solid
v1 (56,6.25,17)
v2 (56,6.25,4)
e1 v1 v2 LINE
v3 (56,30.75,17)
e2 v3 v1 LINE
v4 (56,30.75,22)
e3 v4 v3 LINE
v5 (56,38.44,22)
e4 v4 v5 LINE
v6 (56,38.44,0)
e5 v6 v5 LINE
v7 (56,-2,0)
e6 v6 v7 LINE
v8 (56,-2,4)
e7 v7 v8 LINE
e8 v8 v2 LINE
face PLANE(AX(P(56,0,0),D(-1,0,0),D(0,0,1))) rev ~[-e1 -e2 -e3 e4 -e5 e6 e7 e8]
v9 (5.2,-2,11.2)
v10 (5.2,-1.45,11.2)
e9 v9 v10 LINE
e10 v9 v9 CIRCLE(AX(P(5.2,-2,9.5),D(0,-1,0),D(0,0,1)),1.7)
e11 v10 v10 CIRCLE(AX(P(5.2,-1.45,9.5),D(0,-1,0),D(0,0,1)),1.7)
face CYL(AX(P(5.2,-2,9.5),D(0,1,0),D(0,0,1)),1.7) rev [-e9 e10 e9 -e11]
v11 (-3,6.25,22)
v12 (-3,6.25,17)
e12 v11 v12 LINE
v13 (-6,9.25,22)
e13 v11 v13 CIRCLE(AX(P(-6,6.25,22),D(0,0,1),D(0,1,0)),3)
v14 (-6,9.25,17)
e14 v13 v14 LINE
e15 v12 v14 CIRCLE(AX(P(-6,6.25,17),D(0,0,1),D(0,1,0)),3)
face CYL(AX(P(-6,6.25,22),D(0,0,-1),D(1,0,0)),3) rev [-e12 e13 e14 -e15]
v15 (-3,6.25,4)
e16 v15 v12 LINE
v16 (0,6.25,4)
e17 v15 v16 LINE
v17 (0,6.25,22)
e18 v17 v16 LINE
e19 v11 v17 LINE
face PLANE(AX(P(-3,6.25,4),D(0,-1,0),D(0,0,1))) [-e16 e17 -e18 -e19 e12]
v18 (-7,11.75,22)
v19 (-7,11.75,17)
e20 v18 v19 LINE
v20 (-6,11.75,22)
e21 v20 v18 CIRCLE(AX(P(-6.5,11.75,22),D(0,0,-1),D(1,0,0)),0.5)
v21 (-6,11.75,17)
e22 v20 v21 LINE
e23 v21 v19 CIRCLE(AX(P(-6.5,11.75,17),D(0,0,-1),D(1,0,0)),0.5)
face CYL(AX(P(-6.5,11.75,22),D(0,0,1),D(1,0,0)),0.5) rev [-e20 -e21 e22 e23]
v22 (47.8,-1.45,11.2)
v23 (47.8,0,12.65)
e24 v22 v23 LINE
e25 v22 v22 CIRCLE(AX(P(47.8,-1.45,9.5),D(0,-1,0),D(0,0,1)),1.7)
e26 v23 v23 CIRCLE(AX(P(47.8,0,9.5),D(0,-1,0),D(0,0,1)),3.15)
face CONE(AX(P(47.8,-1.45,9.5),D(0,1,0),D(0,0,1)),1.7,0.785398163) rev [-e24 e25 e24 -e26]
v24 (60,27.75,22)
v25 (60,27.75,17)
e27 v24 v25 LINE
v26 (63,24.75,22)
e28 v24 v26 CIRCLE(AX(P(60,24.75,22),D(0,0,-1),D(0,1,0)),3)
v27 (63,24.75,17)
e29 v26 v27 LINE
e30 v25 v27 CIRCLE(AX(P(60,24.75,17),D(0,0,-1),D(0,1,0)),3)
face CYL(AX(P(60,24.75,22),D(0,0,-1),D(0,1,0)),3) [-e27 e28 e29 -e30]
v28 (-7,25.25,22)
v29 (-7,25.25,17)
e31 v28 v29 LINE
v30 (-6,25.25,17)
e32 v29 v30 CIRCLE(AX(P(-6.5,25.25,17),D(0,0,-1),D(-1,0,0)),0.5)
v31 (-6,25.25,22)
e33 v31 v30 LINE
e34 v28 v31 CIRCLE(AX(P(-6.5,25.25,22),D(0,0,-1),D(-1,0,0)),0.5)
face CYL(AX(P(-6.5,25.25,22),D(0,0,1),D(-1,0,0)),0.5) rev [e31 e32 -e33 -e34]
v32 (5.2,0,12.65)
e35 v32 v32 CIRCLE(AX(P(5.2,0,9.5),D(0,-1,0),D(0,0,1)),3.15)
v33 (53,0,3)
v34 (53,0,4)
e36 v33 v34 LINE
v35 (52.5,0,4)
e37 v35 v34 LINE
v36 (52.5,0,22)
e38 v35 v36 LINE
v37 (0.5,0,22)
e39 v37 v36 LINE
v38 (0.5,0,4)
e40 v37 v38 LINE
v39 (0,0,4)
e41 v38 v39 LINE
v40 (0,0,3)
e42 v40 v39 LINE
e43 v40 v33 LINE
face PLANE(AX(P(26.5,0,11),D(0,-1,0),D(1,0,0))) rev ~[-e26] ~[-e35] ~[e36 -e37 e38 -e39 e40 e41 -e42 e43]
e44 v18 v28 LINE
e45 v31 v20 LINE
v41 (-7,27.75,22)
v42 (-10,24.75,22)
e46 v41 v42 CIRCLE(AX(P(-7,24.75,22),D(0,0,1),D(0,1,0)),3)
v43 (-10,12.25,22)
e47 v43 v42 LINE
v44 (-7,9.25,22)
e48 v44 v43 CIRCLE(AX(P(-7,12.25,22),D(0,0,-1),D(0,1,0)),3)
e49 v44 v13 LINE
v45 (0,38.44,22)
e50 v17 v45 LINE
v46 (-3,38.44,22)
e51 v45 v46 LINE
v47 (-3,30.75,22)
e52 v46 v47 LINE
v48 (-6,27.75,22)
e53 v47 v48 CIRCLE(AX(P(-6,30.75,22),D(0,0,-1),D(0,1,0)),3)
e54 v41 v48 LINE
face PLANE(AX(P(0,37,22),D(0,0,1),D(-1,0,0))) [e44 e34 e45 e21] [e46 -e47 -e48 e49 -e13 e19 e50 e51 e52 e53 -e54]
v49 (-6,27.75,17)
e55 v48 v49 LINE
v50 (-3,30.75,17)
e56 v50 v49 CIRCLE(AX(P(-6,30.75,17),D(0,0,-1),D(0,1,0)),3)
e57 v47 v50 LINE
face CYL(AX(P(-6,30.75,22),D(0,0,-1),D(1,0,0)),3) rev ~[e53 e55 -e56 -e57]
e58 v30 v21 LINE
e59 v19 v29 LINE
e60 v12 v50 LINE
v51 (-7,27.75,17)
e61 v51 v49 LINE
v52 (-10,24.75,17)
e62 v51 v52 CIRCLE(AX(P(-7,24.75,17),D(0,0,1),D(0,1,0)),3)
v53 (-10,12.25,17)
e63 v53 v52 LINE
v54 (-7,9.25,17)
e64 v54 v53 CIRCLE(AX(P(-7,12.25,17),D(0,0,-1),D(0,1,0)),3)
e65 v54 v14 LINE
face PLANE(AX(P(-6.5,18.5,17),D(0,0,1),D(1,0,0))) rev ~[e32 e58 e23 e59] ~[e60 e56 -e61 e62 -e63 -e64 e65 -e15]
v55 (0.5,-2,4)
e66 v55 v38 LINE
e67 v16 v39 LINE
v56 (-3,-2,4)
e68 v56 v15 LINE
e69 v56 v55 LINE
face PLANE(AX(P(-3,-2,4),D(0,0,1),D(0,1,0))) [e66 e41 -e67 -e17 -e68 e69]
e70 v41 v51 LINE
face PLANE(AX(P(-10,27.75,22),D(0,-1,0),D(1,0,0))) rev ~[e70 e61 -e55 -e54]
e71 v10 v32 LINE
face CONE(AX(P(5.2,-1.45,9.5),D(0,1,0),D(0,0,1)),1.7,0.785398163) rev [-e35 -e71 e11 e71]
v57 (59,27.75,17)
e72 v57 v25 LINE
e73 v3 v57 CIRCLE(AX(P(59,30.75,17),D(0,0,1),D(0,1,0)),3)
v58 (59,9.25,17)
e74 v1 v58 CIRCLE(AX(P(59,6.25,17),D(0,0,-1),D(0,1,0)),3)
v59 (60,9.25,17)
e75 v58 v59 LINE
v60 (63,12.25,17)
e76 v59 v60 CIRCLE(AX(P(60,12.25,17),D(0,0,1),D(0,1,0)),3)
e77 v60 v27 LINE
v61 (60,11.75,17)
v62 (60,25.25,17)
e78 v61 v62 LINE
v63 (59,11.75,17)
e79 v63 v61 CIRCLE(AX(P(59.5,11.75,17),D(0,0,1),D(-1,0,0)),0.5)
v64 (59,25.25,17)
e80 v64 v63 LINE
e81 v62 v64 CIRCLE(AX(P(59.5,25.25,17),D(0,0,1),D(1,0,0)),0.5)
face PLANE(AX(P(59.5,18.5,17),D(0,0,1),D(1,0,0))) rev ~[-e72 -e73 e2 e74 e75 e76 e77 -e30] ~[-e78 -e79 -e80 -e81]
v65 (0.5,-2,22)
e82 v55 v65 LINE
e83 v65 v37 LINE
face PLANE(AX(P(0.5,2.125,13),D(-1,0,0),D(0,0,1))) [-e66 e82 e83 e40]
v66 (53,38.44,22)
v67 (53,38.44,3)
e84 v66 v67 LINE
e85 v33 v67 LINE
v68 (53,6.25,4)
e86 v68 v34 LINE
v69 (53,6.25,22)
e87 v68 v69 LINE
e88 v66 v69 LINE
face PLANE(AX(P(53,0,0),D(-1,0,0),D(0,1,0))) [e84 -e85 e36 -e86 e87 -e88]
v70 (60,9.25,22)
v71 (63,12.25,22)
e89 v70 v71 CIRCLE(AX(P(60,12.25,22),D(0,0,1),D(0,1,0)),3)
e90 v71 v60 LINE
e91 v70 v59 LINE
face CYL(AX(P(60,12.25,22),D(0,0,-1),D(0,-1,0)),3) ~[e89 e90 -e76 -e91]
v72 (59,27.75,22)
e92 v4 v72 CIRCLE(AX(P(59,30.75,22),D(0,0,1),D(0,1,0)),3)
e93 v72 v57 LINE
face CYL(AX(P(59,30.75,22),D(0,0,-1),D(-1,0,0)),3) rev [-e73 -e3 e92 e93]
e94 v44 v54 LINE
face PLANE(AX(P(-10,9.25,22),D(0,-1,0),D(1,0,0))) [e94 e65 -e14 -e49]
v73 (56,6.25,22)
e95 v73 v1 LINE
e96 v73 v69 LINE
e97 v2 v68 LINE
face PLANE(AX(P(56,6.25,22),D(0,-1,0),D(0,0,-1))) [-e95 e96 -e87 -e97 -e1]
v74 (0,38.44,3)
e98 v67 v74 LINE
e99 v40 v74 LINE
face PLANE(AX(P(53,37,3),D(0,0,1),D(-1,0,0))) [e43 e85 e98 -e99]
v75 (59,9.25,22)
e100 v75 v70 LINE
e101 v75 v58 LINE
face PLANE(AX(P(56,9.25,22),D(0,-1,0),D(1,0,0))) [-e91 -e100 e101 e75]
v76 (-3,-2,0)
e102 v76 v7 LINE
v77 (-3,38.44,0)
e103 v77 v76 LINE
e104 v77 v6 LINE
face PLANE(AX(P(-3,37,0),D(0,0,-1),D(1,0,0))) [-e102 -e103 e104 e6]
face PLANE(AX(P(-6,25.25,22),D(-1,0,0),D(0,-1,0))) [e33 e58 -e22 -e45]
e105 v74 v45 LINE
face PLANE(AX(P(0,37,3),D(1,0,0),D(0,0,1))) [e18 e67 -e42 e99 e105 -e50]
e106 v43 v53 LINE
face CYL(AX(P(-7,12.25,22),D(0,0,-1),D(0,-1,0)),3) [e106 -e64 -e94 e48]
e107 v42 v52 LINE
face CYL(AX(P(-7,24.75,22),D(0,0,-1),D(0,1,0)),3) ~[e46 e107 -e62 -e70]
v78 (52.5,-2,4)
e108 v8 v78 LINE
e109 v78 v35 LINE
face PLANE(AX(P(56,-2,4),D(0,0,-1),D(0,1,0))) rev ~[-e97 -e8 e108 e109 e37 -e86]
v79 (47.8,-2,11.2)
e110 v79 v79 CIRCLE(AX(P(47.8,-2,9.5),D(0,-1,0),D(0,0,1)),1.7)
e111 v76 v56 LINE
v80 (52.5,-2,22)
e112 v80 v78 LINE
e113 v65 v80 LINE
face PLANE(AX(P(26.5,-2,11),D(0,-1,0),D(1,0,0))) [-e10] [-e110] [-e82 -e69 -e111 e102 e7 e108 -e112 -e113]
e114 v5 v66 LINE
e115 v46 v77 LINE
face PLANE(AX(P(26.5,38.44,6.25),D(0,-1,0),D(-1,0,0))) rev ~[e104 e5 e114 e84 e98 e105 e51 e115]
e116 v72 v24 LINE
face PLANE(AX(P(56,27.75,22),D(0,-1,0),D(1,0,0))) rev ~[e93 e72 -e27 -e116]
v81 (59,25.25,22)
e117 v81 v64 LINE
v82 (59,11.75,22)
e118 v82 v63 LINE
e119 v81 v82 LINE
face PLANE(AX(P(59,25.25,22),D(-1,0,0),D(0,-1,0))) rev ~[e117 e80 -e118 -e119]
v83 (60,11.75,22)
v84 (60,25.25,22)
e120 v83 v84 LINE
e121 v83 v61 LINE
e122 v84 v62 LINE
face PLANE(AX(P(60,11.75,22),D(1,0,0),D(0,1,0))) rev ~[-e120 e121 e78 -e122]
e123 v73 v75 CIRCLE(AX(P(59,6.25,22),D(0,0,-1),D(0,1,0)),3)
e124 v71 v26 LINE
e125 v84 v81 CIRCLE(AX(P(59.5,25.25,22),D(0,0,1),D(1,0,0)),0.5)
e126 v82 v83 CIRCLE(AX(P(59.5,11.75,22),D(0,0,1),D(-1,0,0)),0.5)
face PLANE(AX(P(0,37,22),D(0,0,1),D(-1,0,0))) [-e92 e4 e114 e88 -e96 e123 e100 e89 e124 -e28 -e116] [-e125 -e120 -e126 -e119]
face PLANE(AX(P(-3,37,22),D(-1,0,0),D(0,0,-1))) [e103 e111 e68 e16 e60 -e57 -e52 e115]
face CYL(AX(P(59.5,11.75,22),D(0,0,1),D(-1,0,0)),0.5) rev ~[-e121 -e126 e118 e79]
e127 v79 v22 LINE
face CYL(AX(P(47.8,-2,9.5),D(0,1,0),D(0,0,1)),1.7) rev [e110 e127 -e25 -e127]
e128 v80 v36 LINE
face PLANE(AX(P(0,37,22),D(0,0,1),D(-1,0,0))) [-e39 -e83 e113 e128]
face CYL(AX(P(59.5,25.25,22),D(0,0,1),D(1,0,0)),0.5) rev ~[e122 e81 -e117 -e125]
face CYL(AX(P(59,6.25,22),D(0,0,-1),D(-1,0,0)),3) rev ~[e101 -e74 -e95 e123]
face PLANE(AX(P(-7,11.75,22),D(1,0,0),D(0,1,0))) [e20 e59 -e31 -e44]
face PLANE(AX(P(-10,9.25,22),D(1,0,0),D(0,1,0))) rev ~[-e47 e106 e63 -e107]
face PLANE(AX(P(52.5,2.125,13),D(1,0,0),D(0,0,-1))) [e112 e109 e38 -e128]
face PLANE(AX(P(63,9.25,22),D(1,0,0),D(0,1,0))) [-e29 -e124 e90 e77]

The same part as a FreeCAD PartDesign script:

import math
import FreeCAD as App
import Part
import Sketcher
from FreeCAD import Vector
Q = App.Units.Quantity


def edges_at(feature, points):
    """Names of the edges that pass closest to the given points."""
    edges = feature.Shape.Edges
    near = lambda p: min(range(len(edges)), key=lambda i: edges[i].distToShape(Part.Vertex(*p))[0])
    return sorted({f"Edge{near(p) + 1}" for p in points})


def add_polygon(sketch, points):
    """Adds a closed chain of lines whose ends are joined by coincident constraints."""
    first, n = sketch.GeometryCount, len(points)
    for a, b in zip(points, points[1:] + points[:1]):
        sketch.addGeometry(Part.LineSegment(App.Vector(*a, 0), App.Vector(*b, 0)), False)
    for i in range(n):
        sketch.addConstraint(Sketcher.Constraint("Coincident", first + i, 2, first + (i + 1) % n, 1))

doc = App.newDocument("Part")
body = doc.addObject("PartDesign::Body", "Body")

# Sketch on XY plane
sketch1 = doc.addObject("Sketcher::SketchObject", "Sketch")
body.addObject(sketch1)
sketch1.AttachmentSupport = (doc.XY_Plane, [""])
sketch1.MapMode = "FlatFace"
add_polygon(sketch1, [(0, 37), (0, 0), (53, 0), (53, 37)])  # lines 0-3
sketch1.addConstraint([
    Sketcher.Constraint("Vertical", 0),
    Sketcher.Constraint("Horizontal", 1),
    Sketcher.Constraint("Vertical", 2),
    Sketcher.Constraint("Horizontal", 3),
    Sketcher.Constraint("Coincident", 0, 2, -1, 1),
    Sketcher.Constraint("DistanceX", 1, 1, 1, 2, 53.0),
    Sketcher.Constraint("DistanceY", 0, 2, 0, 1, 37.0),
])
pad1 = doc.addObject("PartDesign::Pad", "Pad")
body.addObject(pad1)
pad1.Profile = sketch1
pad1.Length = 3

# Sketch on XY plane
sketch2 = doc.addObject("Sketcher::SketchObject", "Sketch001")
body.addObject(sketch2)
sketch2.AttachmentSupport = (doc.XY_Plane, [""])
sketch2.MapMode = "FlatFace"
sketch2.AttachmentOffset = App.Placement(Vector(0, 0, 3), App.Rotation())
add_polygon(sketch2, [(-3, 37), (-3, 0), (0, 0), (0, 37)])  # lines 0-3
add_polygon(sketch2, [(53, 37), (53, 0), (56, 0), (56, 37)])  # lines 4-7
sketch2.addConstraint([
    Sketcher.Constraint("Vertical", 0),
    Sketcher.Constraint("Horizontal", 1),
    Sketcher.Constraint("Vertical", 2),
    Sketcher.Constraint("Horizontal", 3),
    Sketcher.Constraint("Vertical", 4),
    Sketcher.Constraint("Horizontal", 5),
    Sketcher.Constraint("Vertical", 6),
    Sketcher.Constraint("Horizontal", 7),
    Sketcher.Constraint("Coincident", 1, 2, -1, 1),
    Sketcher.Constraint("PointOnObject", 4, 2, -1),
    Sketcher.Constraint("Horizontal", 3, 2, 6, 2),
    Sketcher.Constraint("Equal", 3, 5),
    Sketcher.Constraint("DistanceX", 1, 1, 1, 2, 3.0),
    Sketcher.Constraint("DistanceY", 0, 2, 0, 1, 37.0),
    Sketcher.Constraint("DistanceX", -1, 1, 4, 2, 53.0),
])
pad2 = doc.addObject("PartDesign::Pad", "Pad001")
body.addObject(pad2)
pad2.Profile = sketch2
pad2.Type = "TwoLengths"
pad2.Length = 19
pad2.Length2 = 3

# Sketch on XY plane
sketch3 = doc.addObject("Sketcher::SketchObject", "Sketch002")
body.addObject(sketch3)
sketch3.AttachmentSupport = (doc.XY_Plane, [""])
sketch3.MapMode = "FlatFace"
sketch3.AttachmentOffset = App.Placement(Vector(0, 0, 22), App.Rotation())
add_polygon(sketch3, [(-10, 27.8), (-10, 9.2), (-3, 9.2), (-3, 27.8)])  # lines 0-3
sketch3.addGeometry(Part.ArcOfCircle(Part.Circle(Vector(-6.5, 25.2, 0), Vector(0, 0, 1), 0.5), math.radians(0), math.radians(180)), False)  # 4
sketch3.addGeometry(Part.LineSegment(Vector(-6, 25.2, 0), Vector(-6, 11.8, 0)), False)  # 5
sketch3.addGeometry(Part.ArcOfCircle(Part.Circle(Vector(-6.5, 11.8, 0), Vector(0, 0, 1), 0.5), math.radians(180), math.radians(360)), False)  # 6
sketch3.addGeometry(Part.LineSegment(Vector(-7, 11.8, 0), Vector(-7, 25.2, 0)), False)  # 7
add_polygon(sketch3, [(56, 27.8), (56, 9.2), (63, 9.2), (63, 27.8)])  # lines 8-11
sketch3.addGeometry(Part.LineSegment(Vector(59, 11.8, 0), Vector(59, 25.2, 0)), False)  # 12
sketch3.addGeometry(Part.ArcOfCircle(Part.Circle(Vector(59.5, 25.2, 0), Vector(0, 0, 1), 0.5), math.radians(0), math.radians(180)), False)  # 13
sketch3.addGeometry(Part.LineSegment(Vector(60, 25.2, 0), Vector(60, 11.8, 0)), False)  # 14
sketch3.addGeometry(Part.ArcOfCircle(Part.Circle(Vector(59.5, 11.8, 0), Vector(0, 0, 1), 0.5), math.radians(180), math.radians(360)), False)  # 15
sketch3.addConstraint([
    Sketcher.Constraint("Tangent", 4, 1, 5, 1),
    Sketcher.Constraint("Tangent", 5, 2, 6, 2),
    Sketcher.Constraint("Tangent", 6, 1, 7, 1),
    Sketcher.Constraint("Tangent", 7, 2, 4, 2),
    Sketcher.Constraint("Tangent", 12, 2, 13, 2),
    Sketcher.Constraint("Tangent", 13, 1, 14, 1),
    Sketcher.Constraint("Tangent", 14, 2, 15, 2),
    Sketcher.Constraint("Tangent", 15, 1, 12, 1),
    Sketcher.Constraint("Vertical", 0),
    Sketcher.Constraint("Horizontal", 1),
    Sketcher.Constraint("Vertical", 2),
    Sketcher.Constraint("Horizontal", 3),
    Sketcher.Constraint("Vertical", 5),
    Sketcher.Constraint("Vertical", 7),
    Sketcher.Constraint("Vertical", 8),
    Sketcher.Constraint("Horizontal", 9),
    Sketcher.Constraint("Vertical", 10),
    Sketcher.Constraint("Horizontal", 11),
    Sketcher.Constraint("Vertical", 12),
    Sketcher.Constraint("Vertical", 14),
    Sketcher.Constraint("Equal", 6, 13),
    Sketcher.Constraint("Horizontal", 4, 3, 13, 3),
    Sketcher.Constraint("Horizontal", 6, 3, 15, 3),
    Sketcher.Constraint("Horizontal", 1, 2, 8, 2),
    Sketcher.Constraint("Horizontal", 3, 2, 10, 2),
    Sketcher.Constraint("Equal", 3, 9),
    Sketcher.Constraint("Radius", 4, 0.5),
    Sketcher.Constraint("DistanceX", 1, 1, 1, 2, 7.0),
    Sketcher.Constraint("DistanceY", 0, 2, 0, 1, 18.5),
    Sketcher.Constraint("DistanceY", 5, 2, 5, 1, 13.5),
    Sketcher.Constraint("DistanceX", 0, 2, -1, 1, 10.0),
    Sketcher.Constraint("DistanceX", 4, 1, -1, 1, 6.0),
    Sketcher.Constraint("DistanceX", -1, 1, 8, 2, 56.0),
    Sketcher.Constraint("DistanceX", -1, 1, 12, 2, 59.0),
    Sketcher.Constraint("DistanceY", 0, 2, 4, 3, 16.0),
    Sketcher.Constraint("DistanceY", -1, 1, 4, 3, 25.25),
])
pad3 = doc.addObject("PartDesign::Pad", "Pad002")
body.addObject(pad3)
pad3.Profile = sketch3
pad3.Length = 5
pad3.Reversed = True
doc.recompute()

fillet = doc.addObject("PartDesign::Fillet", "Fillet")
body.addObject(fillet)
fillet.Base = (pad3, edges_at(pad3, [
    (-3, 27.75, 19.5),
    (-3, 9.25, 19.5),
    (-10, 9.25, 19.5),
    (-10, 27.75, 19.5),
    (63, 9.25, 19.5),
    (56, 9.25, 19.5),
    (56, 27.75, 19.5),
    (63, 27.75, 19.5),
]))
fillet.Radius = 3

# Sketch on XZ plane
sketch4 = doc.addObject("Sketcher::SketchObject", "Sketch003")
body.addObject(sketch4)
sketch4.AttachmentSupport = (doc.XZ_Plane, [""])
sketch4.MapMode = "FlatFace"
add_polygon(sketch4, [(-3, 22), (-3, 0), (56, 0), (56, 22)])  # lines 0-3
sketch4.addGeometry(Part.Circle(Vector(5.2, 9.5, 0), Vector(0, 0, 1), 0.5), False)  # 4
sketch4.addGeometry(Part.Circle(Vector(47.8, 9.5, 0), Vector(0, 0, 1), 0.5), False)  # 5
sketch4.addConstraint([
    Sketcher.Constraint("Vertical", 0),
    Sketcher.Constraint("Horizontal", 1),
    Sketcher.Constraint("Vertical", 2),
    Sketcher.Constraint("Horizontal", 3),
    Sketcher.Constraint("Equal", 4, 5),
    Sketcher.Constraint("PointOnObject", 0, 2, -1),
    Sketcher.Constraint("Horizontal", 4, 3, 5, 3),
    Sketcher.Constraint("Diameter", 4, 1.0),
    Sketcher.Constraint("DistanceX", 1, 1, 1, 2, 59.0),
    Sketcher.Constraint("DistanceY", 0, 2, 0, 1, 22.0),
    Sketcher.Constraint("DistanceX", 0, 2, -1, 1, 3.0),
    Sketcher.Constraint("DistanceX", -1, 1, 4, 3, 5.2),
    Sketcher.Constraint("DistanceY", -1, 1, 4, 3, 9.5),
    Sketcher.Constraint("DistanceX", -1, 1, 5, 3, 47.8),
])
pad4 = doc.addObject("PartDesign::Pad", "Pad003")
body.addObject(pad4)
pad4.Profile = sketch4
pad4.Length = 2

# Sketch on YZ plane
sketch5 = doc.addObject("Sketcher::SketchObject", "Sketch004")
body.addObject(sketch5)
sketch5.AttachmentSupport = (doc.YZ_Plane, [""])
sketch5.MapMode = "FlatFace"
sketch5.AttachmentOffset = App.Placement(Vector(0, 0, 5.2), App.Rotation())
add_polygon(sketch5, [(-2, 9.5), (0, 9.5), (0, 12.7), (-1.4, 11.2), (-2, 11.2)])  # lines 0-4
sketch5.addGeometry(Part.LineSegment(Vector(0, 9.5, 0), Vector(-2, 9.5, 0)), True)  # axis
sketch5.addConstraint([
    Sketcher.Constraint("Horizontal", 0),
    Sketcher.Constraint("Vertical", 1),
    Sketcher.Constraint("Horizontal", 3),
    Sketcher.Constraint("Vertical", 4),
    Sketcher.Constraint("Horizontal", 5),
    Sketcher.Constraint("Coincident", 5, 1, 0, 2),
    Sketcher.Constraint("PointOnObject", 0, 2, -2),
    Sketcher.Constraint("Vertical", 3, 2, 5, 2),
    Sketcher.Constraint("DistanceX", 0, 1, 0, 2, 2.0),
    Sketcher.Constraint("Angle", 2, Q("-135 deg")),
    Sketcher.Constraint("DistanceY", 4, 2, 4, 1, 1.7),
    Sketcher.Constraint("DistanceX", 3, 2, 3, 1, 0.55),
    Sketcher.Constraint("DistanceY", -1, 1, 0, 2, 9.5),
])
groove = doc.addObject("PartDesign::Groove", "Groove")
body.addObject(groove)
groove.Profile = sketch5
groove.ReferenceAxis = (sketch5, ["Axis0"])
groove.Angle = 360
doc.recompute()

linearpattern = doc.addObject("PartDesign::LinearPattern", "LinearPattern")
body.addObject(linearpattern)
linearpattern.Originals = [groove]
linearpattern.Direction = (doc.X_Axis, [""])
linearpattern.Mode = "offset"
linearpattern.Offset = 42.6
linearpattern.Occurrences = 2
body.Tip = linearpattern

# Sketch on XZ plane
sketch6 = doc.addObject("Sketcher::SketchObject", "Sketch005")
body.addObject(sketch6)
sketch6.AttachmentSupport = (doc.XZ_Plane, [""])
sketch6.MapMode = "FlatFace"
sketch6.AttachmentOffset = App.Placement(Vector(0, 0, -37), App.Rotation())
add_polygon(sketch6, [(-3, 22), (0, 22), (0, 3), (53, 3), (53, 22), (56, 22), (56, 0), (-3, 0)])  # lines 0-7
sketch6.addConstraint([
    Sketcher.Constraint("Horizontal", 0),
    Sketcher.Constraint("Vertical", 1),
    Sketcher.Constraint("Horizontal", 2),
    Sketcher.Constraint("Vertical", 3),
    Sketcher.Constraint("Horizontal", 4),
    Sketcher.Constraint("Vertical", 5),
    Sketcher.Constraint("Horizontal", 6),
    Sketcher.Constraint("Vertical", 7),
    Sketcher.Constraint("PointOnObject", 0, 2, -2),
    Sketcher.Constraint("PointOnObject", 5, 2, -1),
    Sketcher.Constraint("Horizontal", 0, 2, 3, 2),
    Sketcher.Constraint("Equal", 0, 4),
    Sketcher.Constraint("DistanceX", 0, 1, 0, 2, 3.0),
    Sketcher.Constraint("DistanceX", 2, 1, 2, 2, 53.0),
    Sketcher.Constraint("DistanceY", 1, 2, 1, 1, 19.0),
    Sketcher.Constraint("DistanceY", 5, 2, 5, 1, 22.0),
])
pad5 = doc.addObject("PartDesign::Pad", "Pad004")
body.addObject(pad5)
pad5.Profile = sketch6
pad5.Length = 1.44
pad5.Reversed = True

# Sketch on YZ plane
sketch7 = doc.addObject("Sketcher::SketchObject", "Sketch006")
body.addObject(sketch7)
sketch7.AttachmentSupport = (doc.YZ_Plane, [""])
sketch7.MapMode = "FlatFace"
sketch7.AttachmentOffset = App.Placement(Vector(0, 0, -3), App.Rotation())
add_polygon(sketch7, [(6, 4), (-2, 4), (-2, 22), (6, 22)])  # lines 0-3
sketch7.addConstraint([
    Sketcher.Constraint("Horizontal", 0),
    Sketcher.Constraint("Vertical", 1),
    Sketcher.Constraint("Horizontal", 2),
    Sketcher.Constraint("Vertical", 3),
    Sketcher.Constraint("DistanceY", 1, 1, 1, 2, 18.0),
    Sketcher.Constraint("DistanceX", 0, 2, -1, 1, 2.0),
    Sketcher.Constraint("DistanceY", -1, 1, 0, 2, 4.0),
    Sketcher.Constraint("DistanceX", 0, 2, 0, 1, 8.25),
])
pocket1 = doc.addObject("PartDesign::Pocket", "Pocket")
body.addObject(pocket1)
pocket1.Profile = sketch7
pocket1.Length = 3.5
pocket1.Reversed = True

# Sketch on YZ plane
sketch8 = doc.addObject("Sketcher::SketchObject", "Sketch007")
body.addObject(sketch8)
sketch8.AttachmentSupport = (doc.YZ_Plane, [""])
sketch8.MapMode = "FlatFace"
sketch8.AttachmentOffset = App.Placement(Vector(0, 0, 56), App.Rotation())
add_polygon(sketch8, [(6, 22), (-2, 22), (-2, 4), (6, 4)])  # lines 0-3
sketch8.addConstraint([
    Sketcher.Constraint("Horizontal", 0),
    Sketcher.Constraint("Vertical", 1),
    Sketcher.Constraint("Horizontal", 2),
    Sketcher.Constraint("Vertical", 3),
    Sketcher.Constraint("DistanceY", 1, 2, 1, 1, 18.0),
    Sketcher.Constraint("DistanceX", 0, 2, -1, 1, 2.0),
    Sketcher.Constraint("DistanceY", -1, 1, 0, 2, 22.0),
    Sketcher.Constraint("DistanceX", 0, 2, 0, 1, 8.25),
])
pocket2 = doc.addObject("PartDesign::Pocket", "Pocket001")
body.addObject(pocket2)
pocket2.Profile = sketch8
pocket2.Length = 3.5

doc.recompute()
